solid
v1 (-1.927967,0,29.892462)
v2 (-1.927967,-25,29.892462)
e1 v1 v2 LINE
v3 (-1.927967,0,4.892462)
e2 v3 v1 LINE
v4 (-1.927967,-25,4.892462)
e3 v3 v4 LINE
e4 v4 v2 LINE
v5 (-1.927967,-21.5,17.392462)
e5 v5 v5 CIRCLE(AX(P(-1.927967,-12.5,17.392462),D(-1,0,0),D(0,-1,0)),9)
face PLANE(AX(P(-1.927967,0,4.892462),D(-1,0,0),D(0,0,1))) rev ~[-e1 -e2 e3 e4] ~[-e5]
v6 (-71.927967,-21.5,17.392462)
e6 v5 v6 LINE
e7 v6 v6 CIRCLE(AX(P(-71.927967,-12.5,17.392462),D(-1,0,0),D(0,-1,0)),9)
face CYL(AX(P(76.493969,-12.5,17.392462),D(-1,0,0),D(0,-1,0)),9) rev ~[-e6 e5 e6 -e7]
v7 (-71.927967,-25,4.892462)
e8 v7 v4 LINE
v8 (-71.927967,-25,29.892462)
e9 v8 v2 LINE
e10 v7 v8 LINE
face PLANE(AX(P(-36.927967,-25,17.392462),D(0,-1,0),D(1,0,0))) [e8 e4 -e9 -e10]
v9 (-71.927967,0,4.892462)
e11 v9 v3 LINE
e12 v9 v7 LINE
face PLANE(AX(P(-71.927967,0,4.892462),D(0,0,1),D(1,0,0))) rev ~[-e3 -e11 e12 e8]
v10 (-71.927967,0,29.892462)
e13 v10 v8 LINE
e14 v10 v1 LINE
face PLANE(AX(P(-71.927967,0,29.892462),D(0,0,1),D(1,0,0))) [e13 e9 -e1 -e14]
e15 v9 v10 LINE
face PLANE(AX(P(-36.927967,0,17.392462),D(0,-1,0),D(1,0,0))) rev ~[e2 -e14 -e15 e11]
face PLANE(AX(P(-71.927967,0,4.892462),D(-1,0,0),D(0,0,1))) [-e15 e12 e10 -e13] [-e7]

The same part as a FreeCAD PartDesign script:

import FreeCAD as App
import Part
import Sketcher

doc = App.newDocument("Part")
body = doc.addObject("PartDesign::Body", "Body")

sketch1 = body.newObject("Sketcher::SketchObject", "Sketch")
sketch1.AttachmentSupport = (doc.getObject("XZ_Plane"), [""])
sketch1.MapMode = "FlatFace"
sketch1.addGeometry(Part.LineSegment(App.Vector(-72, 30, 0), App.Vector(-72, 5, 0)), False)
sketch1.addGeometry(Part.LineSegment(App.Vector(-72, 5, 0), App.Vector(-2, 5, 0)), False)
sketch1.addGeometry(Part.LineSegment(App.Vector(-2, 5, 0), App.Vector(-2, 30, 0)), False)
sketch1.addGeometry(Part.LineSegment(App.Vector(-2, 30, 0), App.Vector(-72, 30, 0)), False)
sketch1.addConstraint(Sketcher.Constraint("Coincident", 0, 2, 1, 1))
sketch1.addConstraint(Sketcher.Constraint("Coincident", 1, 2, 2, 1))
sketch1.addConstraint(Sketcher.Constraint("Coincident", 2, 2, 3, 1))
sketch1.addConstraint(Sketcher.Constraint("Coincident", 3, 2, 0, 1))
sketch1.addConstraint(Sketcher.Constraint("Vertical", 0))
sketch1.addConstraint(Sketcher.Constraint("Horizontal", 1))
sketch1.addConstraint(Sketcher.Constraint("Vertical", 2))
sketch1.addConstraint(Sketcher.Constraint("Horizontal", 3))
sketch1.addConstraint(Sketcher.Constraint("DistanceX", 1, 1, 1, 2, 70.0))
sketch1.addConstraint(Sketcher.Constraint("DistanceY", 0, 2, 0, 1, 25.0))
sketch1.addConstraint(Sketcher.Constraint("DistanceY", -1, 1, 2, 2, 29.892462))
sketch1.addConstraint(Sketcher.Constraint("DistanceX", 0, 2, -1, 1, 71.927967))
pad1 = body.newObject("PartDesign::Pad", "Pad")
pad1.Profile = sketch1
pad1.Length = 25

sketch2 = body.newObject("Sketcher::SketchObject", "Sketch001")
sketch2.AttachmentSupport = (doc.getObject("YZ_Plane"), [""])
sketch2.MapMode = "FlatFace"
sketch2.AttachmentOffset = App.Placement(App.Vector(0, 0, -1.927967), App.Rotation())
sketch2.addGeometry(Part.Circle(App.Vector(-12, 17, 0), App.Vector(0, 0, 1), 9), False)
sketch2.addConstraint(Sketcher.Constraint("Diameter", 0, 18.0))
sketch2.addConstraint(Sketcher.Constraint("DistanceX", 0, 3, -1, 1, 12.5))
sketch2.addConstraint(Sketcher.Constraint("DistanceY", -1, 1, 0, 3, 17.392462))
doc.recompute()
hole = body.newObject("PartDesign::Hole", "Hole")
hole.Profile = sketch2
hole.ThreadType = "None"
hole.Diameter = 18
hole.DepthType = "ThroughAll"

doc.recompute()
